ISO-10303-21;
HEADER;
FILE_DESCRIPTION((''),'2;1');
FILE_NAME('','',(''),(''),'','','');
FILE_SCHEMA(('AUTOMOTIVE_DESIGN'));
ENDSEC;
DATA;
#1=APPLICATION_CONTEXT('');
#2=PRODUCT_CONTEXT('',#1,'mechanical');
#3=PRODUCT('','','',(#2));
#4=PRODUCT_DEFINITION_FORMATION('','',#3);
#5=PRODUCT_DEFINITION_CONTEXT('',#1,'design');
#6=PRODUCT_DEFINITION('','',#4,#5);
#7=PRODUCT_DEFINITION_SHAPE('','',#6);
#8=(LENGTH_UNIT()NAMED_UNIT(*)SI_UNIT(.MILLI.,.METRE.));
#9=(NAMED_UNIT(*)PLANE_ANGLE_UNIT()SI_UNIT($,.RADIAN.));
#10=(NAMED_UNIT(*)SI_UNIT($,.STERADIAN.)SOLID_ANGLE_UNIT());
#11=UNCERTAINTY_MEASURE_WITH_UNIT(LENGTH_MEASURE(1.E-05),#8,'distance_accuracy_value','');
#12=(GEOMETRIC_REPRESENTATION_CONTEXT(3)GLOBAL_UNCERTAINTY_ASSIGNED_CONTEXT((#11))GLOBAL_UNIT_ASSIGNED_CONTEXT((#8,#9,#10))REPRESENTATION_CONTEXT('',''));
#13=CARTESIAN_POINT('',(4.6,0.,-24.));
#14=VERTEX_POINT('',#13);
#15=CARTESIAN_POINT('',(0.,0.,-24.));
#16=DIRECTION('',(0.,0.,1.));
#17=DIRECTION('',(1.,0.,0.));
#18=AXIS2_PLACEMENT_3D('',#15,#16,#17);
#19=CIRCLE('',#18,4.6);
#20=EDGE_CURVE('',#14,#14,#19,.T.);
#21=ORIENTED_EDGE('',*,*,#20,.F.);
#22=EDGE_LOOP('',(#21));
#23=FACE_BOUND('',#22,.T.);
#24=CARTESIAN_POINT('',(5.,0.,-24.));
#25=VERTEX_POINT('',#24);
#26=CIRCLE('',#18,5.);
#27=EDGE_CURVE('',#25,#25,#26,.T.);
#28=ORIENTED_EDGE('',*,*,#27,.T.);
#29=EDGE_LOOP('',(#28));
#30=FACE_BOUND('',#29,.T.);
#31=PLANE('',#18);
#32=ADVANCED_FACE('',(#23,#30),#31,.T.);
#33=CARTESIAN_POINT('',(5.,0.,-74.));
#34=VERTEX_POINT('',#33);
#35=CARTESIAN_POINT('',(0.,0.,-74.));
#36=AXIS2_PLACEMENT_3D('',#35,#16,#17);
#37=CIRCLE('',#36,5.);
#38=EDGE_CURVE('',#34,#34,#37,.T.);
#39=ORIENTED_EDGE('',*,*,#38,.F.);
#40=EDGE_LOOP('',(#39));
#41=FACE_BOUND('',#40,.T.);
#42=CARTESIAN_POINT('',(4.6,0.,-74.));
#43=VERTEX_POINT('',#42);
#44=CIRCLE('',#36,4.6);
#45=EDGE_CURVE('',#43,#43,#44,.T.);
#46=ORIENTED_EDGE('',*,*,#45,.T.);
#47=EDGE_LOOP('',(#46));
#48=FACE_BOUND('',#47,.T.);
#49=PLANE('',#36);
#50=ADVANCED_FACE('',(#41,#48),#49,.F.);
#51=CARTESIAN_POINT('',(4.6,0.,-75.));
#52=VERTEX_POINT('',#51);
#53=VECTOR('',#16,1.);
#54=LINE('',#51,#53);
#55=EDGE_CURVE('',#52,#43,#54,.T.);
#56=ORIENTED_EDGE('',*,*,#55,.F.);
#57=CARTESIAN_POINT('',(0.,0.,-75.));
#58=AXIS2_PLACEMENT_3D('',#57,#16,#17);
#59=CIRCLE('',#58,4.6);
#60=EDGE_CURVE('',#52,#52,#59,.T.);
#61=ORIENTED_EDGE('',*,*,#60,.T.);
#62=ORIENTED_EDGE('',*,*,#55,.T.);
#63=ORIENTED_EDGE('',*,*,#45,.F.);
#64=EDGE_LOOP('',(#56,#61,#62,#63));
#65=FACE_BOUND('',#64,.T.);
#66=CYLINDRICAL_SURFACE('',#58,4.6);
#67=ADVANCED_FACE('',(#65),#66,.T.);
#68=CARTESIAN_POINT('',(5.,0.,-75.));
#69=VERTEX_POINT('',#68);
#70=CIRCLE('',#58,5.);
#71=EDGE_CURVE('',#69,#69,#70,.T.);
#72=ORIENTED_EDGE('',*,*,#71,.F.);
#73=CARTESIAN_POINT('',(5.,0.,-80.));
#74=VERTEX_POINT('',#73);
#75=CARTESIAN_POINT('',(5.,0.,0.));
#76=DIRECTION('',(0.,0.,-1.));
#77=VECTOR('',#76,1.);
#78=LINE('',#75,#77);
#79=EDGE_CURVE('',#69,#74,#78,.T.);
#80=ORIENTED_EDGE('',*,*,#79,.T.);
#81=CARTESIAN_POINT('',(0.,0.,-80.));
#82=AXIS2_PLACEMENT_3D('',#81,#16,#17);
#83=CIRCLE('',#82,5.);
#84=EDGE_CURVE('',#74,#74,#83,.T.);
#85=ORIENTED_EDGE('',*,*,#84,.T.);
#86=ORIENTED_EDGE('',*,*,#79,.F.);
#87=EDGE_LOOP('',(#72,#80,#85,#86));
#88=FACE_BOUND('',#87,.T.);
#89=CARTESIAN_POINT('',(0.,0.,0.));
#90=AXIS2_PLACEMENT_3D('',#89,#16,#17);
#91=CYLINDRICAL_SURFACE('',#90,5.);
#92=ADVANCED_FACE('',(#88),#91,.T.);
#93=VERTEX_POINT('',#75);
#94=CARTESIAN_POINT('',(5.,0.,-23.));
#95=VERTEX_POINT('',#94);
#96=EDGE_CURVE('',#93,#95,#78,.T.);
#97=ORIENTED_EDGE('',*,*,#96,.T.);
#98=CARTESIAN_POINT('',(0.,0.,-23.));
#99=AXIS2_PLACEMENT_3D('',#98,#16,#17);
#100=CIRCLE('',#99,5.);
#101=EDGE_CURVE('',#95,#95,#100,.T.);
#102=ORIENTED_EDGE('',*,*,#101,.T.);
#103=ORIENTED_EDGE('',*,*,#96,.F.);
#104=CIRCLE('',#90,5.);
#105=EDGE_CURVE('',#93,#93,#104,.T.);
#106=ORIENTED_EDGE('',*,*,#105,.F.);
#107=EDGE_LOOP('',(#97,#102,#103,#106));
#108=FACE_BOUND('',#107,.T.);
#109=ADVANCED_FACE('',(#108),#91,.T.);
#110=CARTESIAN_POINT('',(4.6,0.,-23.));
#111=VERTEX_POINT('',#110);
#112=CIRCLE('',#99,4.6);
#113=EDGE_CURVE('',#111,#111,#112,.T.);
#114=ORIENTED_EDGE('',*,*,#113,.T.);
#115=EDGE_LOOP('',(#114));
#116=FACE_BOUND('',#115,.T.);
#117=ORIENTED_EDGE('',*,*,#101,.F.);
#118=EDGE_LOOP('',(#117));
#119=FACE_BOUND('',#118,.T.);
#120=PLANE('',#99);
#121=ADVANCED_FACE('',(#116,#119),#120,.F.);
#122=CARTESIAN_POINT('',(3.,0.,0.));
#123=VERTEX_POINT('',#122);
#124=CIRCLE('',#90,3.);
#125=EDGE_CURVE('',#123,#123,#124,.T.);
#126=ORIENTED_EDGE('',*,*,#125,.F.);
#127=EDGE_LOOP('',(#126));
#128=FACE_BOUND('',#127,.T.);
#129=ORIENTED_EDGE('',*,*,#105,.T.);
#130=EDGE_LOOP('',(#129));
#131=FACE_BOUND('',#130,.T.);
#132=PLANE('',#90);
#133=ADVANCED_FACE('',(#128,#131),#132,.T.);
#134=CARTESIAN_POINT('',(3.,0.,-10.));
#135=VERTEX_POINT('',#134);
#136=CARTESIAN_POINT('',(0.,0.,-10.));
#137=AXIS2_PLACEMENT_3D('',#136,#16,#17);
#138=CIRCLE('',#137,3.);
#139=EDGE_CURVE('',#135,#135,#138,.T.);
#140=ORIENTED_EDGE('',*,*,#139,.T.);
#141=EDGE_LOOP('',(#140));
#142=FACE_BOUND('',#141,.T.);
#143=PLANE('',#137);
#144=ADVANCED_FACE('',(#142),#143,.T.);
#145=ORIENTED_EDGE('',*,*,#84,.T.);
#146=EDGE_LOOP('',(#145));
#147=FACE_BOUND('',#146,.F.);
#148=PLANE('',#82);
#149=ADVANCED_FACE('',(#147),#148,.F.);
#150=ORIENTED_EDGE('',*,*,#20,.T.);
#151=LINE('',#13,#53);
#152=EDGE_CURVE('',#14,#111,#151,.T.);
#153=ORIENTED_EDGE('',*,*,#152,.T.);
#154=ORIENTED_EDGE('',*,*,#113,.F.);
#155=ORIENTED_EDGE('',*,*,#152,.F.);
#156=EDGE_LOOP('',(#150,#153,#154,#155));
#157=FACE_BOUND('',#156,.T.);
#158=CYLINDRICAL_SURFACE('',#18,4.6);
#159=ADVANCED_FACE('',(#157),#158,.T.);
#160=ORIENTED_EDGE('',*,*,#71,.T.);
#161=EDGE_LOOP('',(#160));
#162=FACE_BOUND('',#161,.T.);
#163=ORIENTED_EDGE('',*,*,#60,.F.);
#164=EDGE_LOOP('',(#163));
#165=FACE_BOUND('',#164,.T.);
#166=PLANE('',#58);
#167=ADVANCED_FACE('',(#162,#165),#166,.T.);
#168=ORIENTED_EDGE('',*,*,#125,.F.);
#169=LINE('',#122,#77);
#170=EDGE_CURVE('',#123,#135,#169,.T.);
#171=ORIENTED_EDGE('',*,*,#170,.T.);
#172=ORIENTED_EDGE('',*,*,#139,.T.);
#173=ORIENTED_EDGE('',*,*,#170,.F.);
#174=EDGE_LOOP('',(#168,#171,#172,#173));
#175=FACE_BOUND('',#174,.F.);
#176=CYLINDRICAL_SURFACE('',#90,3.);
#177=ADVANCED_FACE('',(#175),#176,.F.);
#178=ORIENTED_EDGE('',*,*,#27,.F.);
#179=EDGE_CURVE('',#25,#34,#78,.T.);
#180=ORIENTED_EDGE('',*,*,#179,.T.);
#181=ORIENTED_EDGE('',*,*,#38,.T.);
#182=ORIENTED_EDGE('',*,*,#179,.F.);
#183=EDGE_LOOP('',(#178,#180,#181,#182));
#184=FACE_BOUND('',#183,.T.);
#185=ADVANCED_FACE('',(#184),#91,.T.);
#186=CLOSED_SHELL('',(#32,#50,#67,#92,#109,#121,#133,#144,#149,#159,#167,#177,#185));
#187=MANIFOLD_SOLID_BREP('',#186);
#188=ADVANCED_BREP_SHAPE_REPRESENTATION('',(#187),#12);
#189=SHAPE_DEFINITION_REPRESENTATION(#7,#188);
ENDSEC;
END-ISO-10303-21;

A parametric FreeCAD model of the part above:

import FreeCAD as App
import Part
import Sketcher
from FreeCAD import Vector
Q = App.Units.Quantity


def add_polygon(sketch, points):
    """Adds a closed chain of lines whose ends are joined by coincident constraints."""
    first, n = sketch.GeometryCount, len(points)
    for a, b in zip(points, points[1:] + points[:1]):
        sketch.addGeometry(Part.LineSegment(App.Vector(*a, 0), App.Vector(*b, 0)), False)
    for i in range(n):
        sketch.addConstraint(Sketcher.Constraint("Coincident", first + i, 2, first + (i + 1) % n, 1))

doc = App.newDocument("Part")
body = doc.addObject("PartDesign::Body", "Body")

# Sketch on XY plane
sketch1 = body.newObject("Sketcher::SketchObject", "Sketch")
sketch1.AttachmentSupport = (doc.getObject("XY_Plane"), [""])
sketch1.MapMode = "FlatFace"
sketch1.addGeometry(Part.Circle(Vector(0, 0, 0), Vector(0, 0, 1), 5), False)
sketch1.addConstraint([
    Sketcher.Constraint("Coincident", 0, 3, -1, 1),
    Sketcher.Constraint("Diameter", 0, Q("10 mm")),
])
pad1 = body.newObject("PartDesign::Pad", "Pad")
pad1.Profile = sketch1
pad1.Length = 80
pad1.Reversed = True

# Sketch on XZ plane
sketch2 = body.newObject("Sketcher::SketchObject", "Sketch001")
sketch2.AttachmentSupport = (doc.getObject("XZ_Plane"), [""])
sketch2.MapMode = "FlatFace"
add_polygon(sketch2, [(4.6, -74), (5, -74), (5, -75), (4.6, -75)])  # lines 0-3
sketch2.addConstraint([
    Sketcher.Constraint("Horizontal", 0),
    Sketcher.Constraint("Vertical", 1),
    Sketcher.Constraint("Horizontal", 2),
    Sketcher.Constraint("Vertical", 3),
    Sketcher.Constraint("DistanceY", 1, 2, 1, 1, Q("1 mm")),
    Sketcher.Constraint("DistanceX", 0, 1, 0, 2, Q("0.4 mm")),
    Sketcher.Constraint("DistanceX", -1, 1, 0, 2, Q("5 mm")),
    Sketcher.Constraint("DistanceY", 0, 2, -1, 1, Q("74 mm")),
])
groove = body.newObject("PartDesign::Groove", "Groove")
groove.Profile = sketch2
groove.ReferenceAxis = (sketch2, ["V_Axis"])
groove.Angle = 360

# Sketch on XZ plane
sketch3 = body.newObject("Sketcher::SketchObject", "Sketch002")
sketch3.AttachmentSupport = (doc.getObject("XZ_Plane"), [""])
sketch3.MapMode = "FlatFace"
add_polygon(sketch3, [(4.6, -23), (5, -23), (5, -24), (4.6, -24)])  # lines 0-3
sketch3.addConstraint([
    Sketcher.Constraint("Horizontal", 0),
    Sketcher.Constraint("Vertical", 1),
    Sketcher.Constraint("Horizontal", 2),
    Sketcher.Constraint("Vertical", 3),
    Sketcher.Constraint("DistanceY", 1, 2, 1, 1, Q("1 mm")),
    Sketcher.Constraint("DistanceX", 0, 1, 0, 2, Q("0.4 mm")),
    Sketcher.Constraint("DistanceX", -1, 1, 0, 2, Q("5 mm")),
    Sketcher.Constraint("DistanceY", 0, 2, -1, 1, Q("23 mm")),
])
groove2 = body.newObject("PartDesign::Groove", "Groove001")
groove2.Profile = sketch3
groove2.ReferenceAxis = (sketch3, ["V_Axis"])
groove2.Angle = 360

# Sketch on XY plane
sketch4 = body.newObject("Sketcher::SketchObject", "Sketch003")
sketch4.AttachmentSupport = (doc.getObject("XY_Plane"), [""])
sketch4.MapMode = "FlatFace"
sketch4.addGeometry(Part.Circle(Vector(0, 0, 0), Vector(0, 0, 1), 3), False)
sketch4.addConstraint([
    Sketcher.Constraint("Coincident", 0, 3, -1, 1),
    Sketcher.Constraint("Diameter", 0, Q("6 mm")),
])
pocket1 = body.newObject("PartDesign::Pocket", "Pocket")
pocket1.Profile = sketch4
pocket1.Length = 10

doc.recompute()
